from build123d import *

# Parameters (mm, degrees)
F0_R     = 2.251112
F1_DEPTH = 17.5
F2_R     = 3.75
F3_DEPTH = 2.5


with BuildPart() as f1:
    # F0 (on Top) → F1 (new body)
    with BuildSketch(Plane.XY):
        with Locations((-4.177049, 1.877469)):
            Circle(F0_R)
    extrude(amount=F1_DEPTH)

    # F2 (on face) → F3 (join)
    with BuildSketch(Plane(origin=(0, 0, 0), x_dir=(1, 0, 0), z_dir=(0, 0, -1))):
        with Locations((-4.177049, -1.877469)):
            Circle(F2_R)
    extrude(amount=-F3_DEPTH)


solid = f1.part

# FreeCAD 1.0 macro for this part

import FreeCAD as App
import Part
import Sketcher

V = App.Vector
Q = App.Units.Quantity

doc = App.newDocument("Part")
body = doc.addObject("PartDesign::Body", "Body")

# Sketch on XY plane
sketch1 = body.newObject("Sketcher::SketchObject", "Sketch")
sketch1.AttachmentSupport = (doc.getObject("XY_Plane"), [""])
sketch1.MapMode = "FlatFace"
sketch1.addGeometry(Part.Circle(V(-4.2, 1.9, 0), V(0, 0, 1), 2.3), False)
sketch1.addConstraint([
    Sketcher.Constraint("Diameter", 0, Q("4.502224 mm")),
    Sketcher.Constraint("DistanceX", 0, 3, -1, 1, Q("4.177049 mm")),
    Sketcher.Constraint("DistanceY", -1, 1, 0, 3, Q("1.877469 mm")),
])
pad1 = body.newObject("PartDesign::Pad", "Pad")
pad1.Profile = sketch1
pad1.Length = 17.5

# Sketch on XY plane
sketch2 = body.newObject("Sketcher::SketchObject", "Sketch001")
sketch2.AttachmentSupport = (doc.getObject("XY_Plane"), [""])
sketch2.MapMode = "FlatFace"
sketch2.addGeometry(Part.Circle(V(-4.2, 1.9, 0), V(0, 0, 1), 3.8), False)
sketch2.addConstraint([
    Sketcher.Constraint("Diameter", 0, Q("7.5 mm")),
    Sketcher.Constraint("DistanceX", 0, 3, -1, 1, Q("4.177049 mm")),
    Sketcher.Constraint("DistanceY", -1, 1, 0, 3, Q("1.877469 mm")),
])
pad2 = body.newObject("PartDesign::Pad", "Pad001")
pad2.Profile = sketch2
pad2.Length = 2.5

doc.recompute()
